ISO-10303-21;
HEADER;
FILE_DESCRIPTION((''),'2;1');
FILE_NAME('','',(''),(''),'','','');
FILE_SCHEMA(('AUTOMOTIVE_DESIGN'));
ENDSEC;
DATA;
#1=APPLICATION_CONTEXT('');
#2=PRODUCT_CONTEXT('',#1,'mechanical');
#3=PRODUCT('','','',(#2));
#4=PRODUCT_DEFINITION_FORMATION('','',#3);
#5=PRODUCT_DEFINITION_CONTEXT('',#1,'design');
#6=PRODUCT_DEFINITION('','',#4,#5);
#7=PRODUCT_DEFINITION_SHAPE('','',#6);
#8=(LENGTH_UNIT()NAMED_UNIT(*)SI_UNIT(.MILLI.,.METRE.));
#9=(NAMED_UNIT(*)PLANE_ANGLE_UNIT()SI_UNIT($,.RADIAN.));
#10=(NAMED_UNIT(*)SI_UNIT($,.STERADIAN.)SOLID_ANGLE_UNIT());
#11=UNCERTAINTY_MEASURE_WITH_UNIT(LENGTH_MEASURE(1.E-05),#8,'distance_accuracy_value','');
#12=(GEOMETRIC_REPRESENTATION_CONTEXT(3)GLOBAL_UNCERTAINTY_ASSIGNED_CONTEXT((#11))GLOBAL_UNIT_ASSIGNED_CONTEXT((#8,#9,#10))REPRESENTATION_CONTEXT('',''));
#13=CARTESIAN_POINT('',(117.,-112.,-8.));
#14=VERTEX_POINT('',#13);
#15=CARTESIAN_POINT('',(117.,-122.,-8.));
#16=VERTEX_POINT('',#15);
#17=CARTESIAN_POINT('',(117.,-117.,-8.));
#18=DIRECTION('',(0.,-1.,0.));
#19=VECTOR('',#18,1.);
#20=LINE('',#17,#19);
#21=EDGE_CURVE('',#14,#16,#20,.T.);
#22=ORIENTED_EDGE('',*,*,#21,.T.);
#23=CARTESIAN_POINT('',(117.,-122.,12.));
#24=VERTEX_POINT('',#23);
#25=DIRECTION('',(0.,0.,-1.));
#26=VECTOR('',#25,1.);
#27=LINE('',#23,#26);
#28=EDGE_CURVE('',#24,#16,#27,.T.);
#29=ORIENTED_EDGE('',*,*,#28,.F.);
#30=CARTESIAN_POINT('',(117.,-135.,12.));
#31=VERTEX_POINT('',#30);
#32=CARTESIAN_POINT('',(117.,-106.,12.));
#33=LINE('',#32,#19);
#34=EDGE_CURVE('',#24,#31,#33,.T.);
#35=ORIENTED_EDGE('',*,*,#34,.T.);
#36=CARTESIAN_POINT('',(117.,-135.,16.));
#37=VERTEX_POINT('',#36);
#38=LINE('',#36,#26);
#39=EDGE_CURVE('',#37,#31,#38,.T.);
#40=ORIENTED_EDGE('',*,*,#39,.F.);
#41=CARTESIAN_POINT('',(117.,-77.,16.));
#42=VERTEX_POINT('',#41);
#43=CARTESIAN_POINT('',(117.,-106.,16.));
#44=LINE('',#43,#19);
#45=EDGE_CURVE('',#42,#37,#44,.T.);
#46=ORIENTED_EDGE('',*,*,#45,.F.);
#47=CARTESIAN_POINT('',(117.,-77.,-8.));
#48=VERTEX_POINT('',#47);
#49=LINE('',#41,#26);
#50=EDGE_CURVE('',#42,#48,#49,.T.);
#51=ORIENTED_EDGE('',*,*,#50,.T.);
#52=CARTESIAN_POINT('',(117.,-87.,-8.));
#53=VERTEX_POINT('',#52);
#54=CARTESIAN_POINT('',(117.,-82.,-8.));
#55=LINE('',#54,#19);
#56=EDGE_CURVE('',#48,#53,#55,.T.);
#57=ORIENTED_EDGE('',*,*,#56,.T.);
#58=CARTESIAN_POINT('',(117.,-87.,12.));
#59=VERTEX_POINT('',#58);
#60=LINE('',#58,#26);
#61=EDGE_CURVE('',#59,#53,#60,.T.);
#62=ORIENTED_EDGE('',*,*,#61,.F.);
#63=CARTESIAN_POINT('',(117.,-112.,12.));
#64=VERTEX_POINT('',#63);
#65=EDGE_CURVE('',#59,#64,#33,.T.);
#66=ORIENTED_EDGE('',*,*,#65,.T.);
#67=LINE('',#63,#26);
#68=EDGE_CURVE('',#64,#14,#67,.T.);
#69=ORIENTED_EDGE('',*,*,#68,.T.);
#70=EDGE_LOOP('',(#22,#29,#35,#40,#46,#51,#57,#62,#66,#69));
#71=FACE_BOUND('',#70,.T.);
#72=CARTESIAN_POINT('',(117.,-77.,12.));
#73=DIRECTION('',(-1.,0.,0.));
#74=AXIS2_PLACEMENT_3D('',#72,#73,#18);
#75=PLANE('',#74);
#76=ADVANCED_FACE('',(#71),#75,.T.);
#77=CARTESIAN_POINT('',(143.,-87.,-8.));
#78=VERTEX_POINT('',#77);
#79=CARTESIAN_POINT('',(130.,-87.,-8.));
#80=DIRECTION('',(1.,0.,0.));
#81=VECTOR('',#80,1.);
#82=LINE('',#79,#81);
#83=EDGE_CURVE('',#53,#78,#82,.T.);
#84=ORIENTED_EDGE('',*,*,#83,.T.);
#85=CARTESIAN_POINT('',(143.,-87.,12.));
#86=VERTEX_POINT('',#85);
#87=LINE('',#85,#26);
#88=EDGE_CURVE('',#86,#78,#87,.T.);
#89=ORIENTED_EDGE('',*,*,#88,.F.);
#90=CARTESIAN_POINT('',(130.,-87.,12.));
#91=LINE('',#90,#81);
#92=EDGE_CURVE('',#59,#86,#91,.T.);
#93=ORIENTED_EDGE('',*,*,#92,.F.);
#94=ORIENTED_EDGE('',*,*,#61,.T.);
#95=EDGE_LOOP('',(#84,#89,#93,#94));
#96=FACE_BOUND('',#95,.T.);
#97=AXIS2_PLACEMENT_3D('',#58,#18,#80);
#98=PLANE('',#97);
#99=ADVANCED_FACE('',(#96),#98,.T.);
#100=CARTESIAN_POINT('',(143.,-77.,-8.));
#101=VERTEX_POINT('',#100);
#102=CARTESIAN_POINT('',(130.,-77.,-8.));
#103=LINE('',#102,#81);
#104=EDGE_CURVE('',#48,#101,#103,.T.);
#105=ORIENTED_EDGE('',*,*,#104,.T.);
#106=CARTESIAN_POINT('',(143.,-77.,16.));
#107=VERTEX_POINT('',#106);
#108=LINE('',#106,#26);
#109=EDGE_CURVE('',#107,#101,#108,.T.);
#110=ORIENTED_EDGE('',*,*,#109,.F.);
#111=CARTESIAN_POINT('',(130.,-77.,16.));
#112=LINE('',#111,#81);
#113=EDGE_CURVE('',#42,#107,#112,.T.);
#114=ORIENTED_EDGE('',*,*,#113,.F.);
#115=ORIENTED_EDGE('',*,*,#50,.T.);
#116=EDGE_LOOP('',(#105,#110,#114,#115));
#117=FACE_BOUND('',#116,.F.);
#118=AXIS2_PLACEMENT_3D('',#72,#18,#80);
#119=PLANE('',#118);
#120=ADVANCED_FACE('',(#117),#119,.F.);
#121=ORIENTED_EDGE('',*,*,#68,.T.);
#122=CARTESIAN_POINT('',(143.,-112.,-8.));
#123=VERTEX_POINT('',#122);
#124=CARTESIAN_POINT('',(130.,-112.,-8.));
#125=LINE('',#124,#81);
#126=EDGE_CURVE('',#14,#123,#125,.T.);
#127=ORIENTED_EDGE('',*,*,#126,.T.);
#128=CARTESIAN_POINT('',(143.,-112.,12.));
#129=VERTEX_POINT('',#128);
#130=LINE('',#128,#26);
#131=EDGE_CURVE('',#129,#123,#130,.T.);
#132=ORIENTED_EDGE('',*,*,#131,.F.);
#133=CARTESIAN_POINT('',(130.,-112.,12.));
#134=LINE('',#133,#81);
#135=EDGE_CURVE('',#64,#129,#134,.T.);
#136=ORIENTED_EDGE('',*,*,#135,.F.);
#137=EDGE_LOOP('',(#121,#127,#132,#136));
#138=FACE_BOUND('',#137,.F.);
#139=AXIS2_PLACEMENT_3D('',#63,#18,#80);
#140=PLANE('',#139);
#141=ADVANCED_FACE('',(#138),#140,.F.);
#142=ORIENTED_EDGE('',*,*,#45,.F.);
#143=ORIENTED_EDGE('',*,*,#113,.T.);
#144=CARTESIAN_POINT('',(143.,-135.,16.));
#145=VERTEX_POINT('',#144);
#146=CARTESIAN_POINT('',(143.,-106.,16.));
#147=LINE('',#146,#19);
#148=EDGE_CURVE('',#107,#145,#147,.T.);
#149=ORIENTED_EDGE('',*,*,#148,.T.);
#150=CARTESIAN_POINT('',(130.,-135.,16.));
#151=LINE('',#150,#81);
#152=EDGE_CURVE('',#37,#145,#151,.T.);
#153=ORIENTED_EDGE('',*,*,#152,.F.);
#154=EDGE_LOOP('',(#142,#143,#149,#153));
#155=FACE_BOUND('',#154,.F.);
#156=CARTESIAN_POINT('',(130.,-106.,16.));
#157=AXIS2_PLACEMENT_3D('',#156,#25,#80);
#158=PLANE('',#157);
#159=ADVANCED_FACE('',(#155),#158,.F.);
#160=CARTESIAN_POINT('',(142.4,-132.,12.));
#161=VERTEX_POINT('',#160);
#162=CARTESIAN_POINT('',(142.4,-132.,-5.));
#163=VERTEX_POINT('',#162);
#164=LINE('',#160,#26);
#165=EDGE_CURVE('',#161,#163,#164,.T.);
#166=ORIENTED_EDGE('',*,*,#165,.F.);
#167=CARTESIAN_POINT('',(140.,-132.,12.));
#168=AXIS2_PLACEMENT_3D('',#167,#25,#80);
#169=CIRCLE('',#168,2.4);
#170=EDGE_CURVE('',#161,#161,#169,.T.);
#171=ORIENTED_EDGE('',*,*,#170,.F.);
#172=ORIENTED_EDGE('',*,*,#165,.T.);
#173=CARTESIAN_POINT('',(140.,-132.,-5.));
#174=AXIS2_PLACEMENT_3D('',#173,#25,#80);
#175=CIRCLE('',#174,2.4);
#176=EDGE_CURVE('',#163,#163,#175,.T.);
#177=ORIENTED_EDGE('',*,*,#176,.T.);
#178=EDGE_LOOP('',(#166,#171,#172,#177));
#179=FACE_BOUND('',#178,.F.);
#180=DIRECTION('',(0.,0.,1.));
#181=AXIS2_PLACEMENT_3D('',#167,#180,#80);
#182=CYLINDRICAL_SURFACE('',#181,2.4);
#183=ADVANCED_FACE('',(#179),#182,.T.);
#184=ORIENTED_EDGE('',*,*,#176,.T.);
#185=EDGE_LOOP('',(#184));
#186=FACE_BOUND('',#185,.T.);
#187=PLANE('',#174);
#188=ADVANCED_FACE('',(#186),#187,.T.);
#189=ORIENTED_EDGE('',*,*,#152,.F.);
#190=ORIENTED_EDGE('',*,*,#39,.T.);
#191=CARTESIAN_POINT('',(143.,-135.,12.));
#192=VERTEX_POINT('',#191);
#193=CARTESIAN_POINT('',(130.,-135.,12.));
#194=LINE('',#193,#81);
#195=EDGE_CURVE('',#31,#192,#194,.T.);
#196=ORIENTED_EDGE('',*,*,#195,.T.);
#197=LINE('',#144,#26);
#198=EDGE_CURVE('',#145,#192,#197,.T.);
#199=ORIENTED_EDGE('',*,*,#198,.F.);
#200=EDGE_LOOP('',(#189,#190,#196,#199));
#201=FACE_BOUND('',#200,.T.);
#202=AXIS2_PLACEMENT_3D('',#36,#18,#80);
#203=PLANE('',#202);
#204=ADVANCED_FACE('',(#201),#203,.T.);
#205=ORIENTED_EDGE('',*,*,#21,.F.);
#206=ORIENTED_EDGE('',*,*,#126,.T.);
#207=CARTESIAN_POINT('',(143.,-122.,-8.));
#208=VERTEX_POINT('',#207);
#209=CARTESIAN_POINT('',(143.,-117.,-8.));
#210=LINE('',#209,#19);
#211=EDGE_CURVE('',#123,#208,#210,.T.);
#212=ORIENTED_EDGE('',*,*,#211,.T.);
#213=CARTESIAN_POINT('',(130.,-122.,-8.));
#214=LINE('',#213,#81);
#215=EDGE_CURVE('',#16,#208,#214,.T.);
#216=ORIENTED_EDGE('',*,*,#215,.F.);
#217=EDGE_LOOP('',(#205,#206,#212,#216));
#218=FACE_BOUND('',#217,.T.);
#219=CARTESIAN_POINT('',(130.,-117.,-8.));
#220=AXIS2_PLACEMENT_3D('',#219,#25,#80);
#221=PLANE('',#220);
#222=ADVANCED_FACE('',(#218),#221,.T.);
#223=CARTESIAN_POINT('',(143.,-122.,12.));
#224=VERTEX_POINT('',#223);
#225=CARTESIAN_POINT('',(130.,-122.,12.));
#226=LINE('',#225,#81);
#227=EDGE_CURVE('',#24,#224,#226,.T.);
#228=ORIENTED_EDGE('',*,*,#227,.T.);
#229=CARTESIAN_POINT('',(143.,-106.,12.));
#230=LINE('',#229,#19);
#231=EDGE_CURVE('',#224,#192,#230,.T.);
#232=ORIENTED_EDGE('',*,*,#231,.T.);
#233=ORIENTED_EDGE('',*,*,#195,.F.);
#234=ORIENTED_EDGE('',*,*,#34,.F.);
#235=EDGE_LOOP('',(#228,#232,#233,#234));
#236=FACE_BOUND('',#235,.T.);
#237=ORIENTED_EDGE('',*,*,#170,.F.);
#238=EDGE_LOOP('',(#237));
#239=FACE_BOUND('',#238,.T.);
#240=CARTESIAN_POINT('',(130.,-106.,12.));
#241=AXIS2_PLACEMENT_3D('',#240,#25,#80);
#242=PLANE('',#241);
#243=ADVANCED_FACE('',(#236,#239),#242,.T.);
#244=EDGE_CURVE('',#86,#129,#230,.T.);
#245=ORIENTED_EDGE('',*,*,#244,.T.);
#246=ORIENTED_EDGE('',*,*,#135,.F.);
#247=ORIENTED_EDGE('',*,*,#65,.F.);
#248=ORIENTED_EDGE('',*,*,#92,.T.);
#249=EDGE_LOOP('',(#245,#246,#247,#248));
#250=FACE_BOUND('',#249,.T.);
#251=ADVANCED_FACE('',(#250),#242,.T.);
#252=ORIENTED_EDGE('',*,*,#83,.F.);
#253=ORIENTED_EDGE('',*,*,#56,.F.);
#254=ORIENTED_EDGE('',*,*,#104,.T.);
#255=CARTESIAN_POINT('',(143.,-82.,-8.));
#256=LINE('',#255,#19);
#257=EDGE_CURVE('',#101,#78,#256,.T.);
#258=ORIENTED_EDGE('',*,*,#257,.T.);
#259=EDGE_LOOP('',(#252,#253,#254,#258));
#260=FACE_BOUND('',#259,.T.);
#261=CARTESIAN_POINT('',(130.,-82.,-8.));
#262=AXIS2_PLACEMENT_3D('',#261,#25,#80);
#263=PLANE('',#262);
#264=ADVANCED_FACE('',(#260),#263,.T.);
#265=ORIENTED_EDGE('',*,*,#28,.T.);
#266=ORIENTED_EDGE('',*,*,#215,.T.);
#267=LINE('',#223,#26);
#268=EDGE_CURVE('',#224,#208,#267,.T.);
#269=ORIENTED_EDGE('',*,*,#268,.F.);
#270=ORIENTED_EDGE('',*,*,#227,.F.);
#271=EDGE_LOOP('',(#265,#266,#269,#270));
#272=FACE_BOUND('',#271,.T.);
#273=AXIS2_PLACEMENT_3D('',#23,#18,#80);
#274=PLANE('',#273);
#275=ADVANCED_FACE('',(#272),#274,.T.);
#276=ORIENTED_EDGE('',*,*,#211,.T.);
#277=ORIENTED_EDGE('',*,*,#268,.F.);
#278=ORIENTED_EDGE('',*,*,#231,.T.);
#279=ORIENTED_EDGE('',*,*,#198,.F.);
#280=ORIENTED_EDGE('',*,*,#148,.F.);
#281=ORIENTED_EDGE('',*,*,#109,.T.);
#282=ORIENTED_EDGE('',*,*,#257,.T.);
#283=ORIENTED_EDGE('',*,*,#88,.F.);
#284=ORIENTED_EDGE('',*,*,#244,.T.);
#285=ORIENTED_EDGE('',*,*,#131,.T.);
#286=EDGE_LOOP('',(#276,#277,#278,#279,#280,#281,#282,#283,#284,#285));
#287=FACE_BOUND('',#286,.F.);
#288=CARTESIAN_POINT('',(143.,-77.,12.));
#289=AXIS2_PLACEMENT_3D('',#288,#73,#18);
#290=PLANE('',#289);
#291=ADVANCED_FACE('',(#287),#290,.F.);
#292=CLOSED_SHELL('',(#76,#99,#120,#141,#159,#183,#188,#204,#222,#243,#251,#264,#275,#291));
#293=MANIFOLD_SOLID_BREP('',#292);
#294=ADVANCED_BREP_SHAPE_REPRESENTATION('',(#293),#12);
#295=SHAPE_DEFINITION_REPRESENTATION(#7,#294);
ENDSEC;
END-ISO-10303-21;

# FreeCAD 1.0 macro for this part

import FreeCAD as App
import Part
import Sketcher
from FreeCAD import Vector

doc = App.newDocument("Part")
params = doc.addObject("Spreadsheet::Sheet", "Params")
for row, (alias, value) in enumerate([
    ("sketch1_width", "26 mm"),
    ("sketch1_height", "58 mm"),
    ("pad1_length", "4 mm"),
    ("sketch2_width", "26 mm"),
    ("sketch2_height", "10 mm"),
    ("pad2_length", "20 mm"),
    ("sketch3_diameter", "4.8 mm"),
    ("pad3_length", "17 mm"),
], start=1):
    params.set(f"A{row}", alias)
    params.set(f"B{row}", "=" + value)
    params.setAlias(f"B{row}", alias)

body = doc.addObject("PartDesign::Body", "Body")

# Sketch on XY plane
sketch1 = body.newObject("Sketcher::SketchObject", "Sketch")
sketch1.AttachmentSupport = (doc.getObject("XY_Plane"), [""])
sketch1.MapMode = "FlatFace"
sketch1.AttachmentOffset = App.Placement(Vector(0, 0, 16), App.Rotation())
sketch1.addGeometry(Part.LineSegment(Vector(117, -135, 0), Vector(117, -77, 0)), False)
sketch1.addGeometry(Part.LineSegment(Vector(117, -77, 0), Vector(143, -77, 0)), False)
sketch1.addGeometry(Part.LineSegment(Vector(143, -77, 0), Vector(143, -135, 0)), False)
sketch1.addGeometry(Part.LineSegment(Vector(143, -135, 0), Vector(117, -135, 0)), False)
sketch1.addConstraint(Sketcher.Constraint("Coincident", 0, 2, 1, 1))
sketch1.addConstraint(Sketcher.Constraint("Coincident", 1, 2, 2, 1))
sketch1.addConstraint(Sketcher.Constraint("Coincident", 2, 2, 3, 1))
sketch1.addConstraint(Sketcher.Constraint("Coincident", 3, 2, 0, 1))
sketch1.addConstraint(Sketcher.Constraint("Vertical", 0))
sketch1.addConstraint(Sketcher.Constraint("Horizontal", 1))
sketch1.addConstraint(Sketcher.Constraint("Vertical", 2))
sketch1.addConstraint(Sketcher.Constraint("Horizontal", 3))
sketch1.addConstraint(Sketcher.Constraint("DistanceX", 1, 1, 1, 2, 26.0))
sketch1.addConstraint(Sketcher.Constraint("DistanceY", 0, 1, 0, 2, 58.0))
sketch1.addConstraint(Sketcher.Constraint("DistanceX", -1, 1, 0, 2, 117.0))
sketch1.addConstraint(Sketcher.Constraint("DistanceY", 0, 2, -1, 1, 77.0))
sketch1.setExpression("Constraints[8]", "Params.sketch1_width")
sketch1.setExpression("Constraints[9]", "Params.sketch1_height")
pad1 = body.newObject("PartDesign::Pad", "Pad")
pad1.Profile = sketch1
pad1.setExpression("Length", "Params.pad1_length")
pad1.Reversed = True

# Sketch on XY plane
sketch2 = body.newObject("Sketcher::SketchObject", "Sketch001")
sketch2.AttachmentSupport = (doc.getObject("XY_Plane"), [""])
sketch2.MapMode = "FlatFace"
sketch2.AttachmentOffset = App.Placement(Vector(0, 0, 12), App.Rotation())
sketch2.addGeometry(Part.LineSegment(Vector(117, -122, 0), Vector(117, -112, 0)), False)
sketch2.addGeometry(Part.LineSegment(Vector(117, -112, 0), Vector(143, -112, 0)), False)
sketch2.addGeometry(Part.LineSegment(Vector(143, -112, 0), Vector(143, -122, 0)), False)
sketch2.addGeometry(Part.LineSegment(Vector(143, -122, 0), Vector(117, -122, 0)), False)
sketch2.addGeometry(Part.LineSegment(Vector(117, -87, 0), Vector(117, -77, 0)), False)
sketch2.addGeometry(Part.LineSegment(Vector(117, -77, 0), Vector(143, -77, 0)), False)
sketch2.addGeometry(Part.LineSegment(Vector(143, -77, 0), Vector(143, -87, 0)), False)
sketch2.addGeometry(Part.LineSegment(Vector(143, -87, 0), Vector(117, -87, 0)), False)
sketch2.addConstraint(Sketcher.Constraint("Coincident", 0, 2, 1, 1))
sketch2.addConstraint(Sketcher.Constraint("Coincident", 1, 2, 2, 1))
sketch2.addConstraint(Sketcher.Constraint("Coincident", 2, 2, 3, 1))
sketch2.addConstraint(Sketcher.Constraint("Coincident", 3, 2, 0, 1))
sketch2.addConstraint(Sketcher.Constraint("Coincident", 4, 2, 5, 1))
sketch2.addConstraint(Sketcher.Constraint("Coincident", 5, 2, 6, 1))
sketch2.addConstraint(Sketcher.Constraint("Coincident", 6, 2, 7, 1))
sketch2.addConstraint(Sketcher.Constraint("Coincident", 7, 2, 4, 1))
sketch2.addConstraint(Sketcher.Constraint("Vertical", 0))
sketch2.addConstraint(Sketcher.Constraint("Horizontal", 1))
sketch2.addConstraint(Sketcher.Constraint("Vertical", 2))
sketch2.addConstraint(Sketcher.Constraint("Horizontal", 3))
sketch2.addConstraint(Sketcher.Constraint("Vertical", 4))
sketch2.addConstraint(Sketcher.Constraint("Horizontal", 5))
sketch2.addConstraint(Sketcher.Constraint("Vertical", 6))
sketch2.addConstraint(Sketcher.Constraint("Horizontal", 7))
sketch2.addConstraint(Sketcher.Constraint("Vertical", 3, 2, 4, 2))
sketch2.addConstraint(Sketcher.Constraint("Vertical", 2, 2, 5, 2))
sketch2.addConstraint(Sketcher.Constraint("Equal", 2, 4))
sketch2.addConstraint(Sketcher.Constraint("DistanceX", 1, 1, 1, 2, 26.0))
sketch2.addConstraint(Sketcher.Constraint("DistanceY", 0, 1, 0, 2, 10.0))
sketch2.addConstraint(Sketcher.Constraint("DistanceX", -1, 1, 0, 2, 117.0))
sketch2.addConstraint(Sketcher.Constraint("DistanceY", 0, 2, -1, 1, 112.0))
sketch2.addConstraint(Sketcher.Constraint("DistanceY", 4, 2, -1, 1, 77.0))
sketch2.setExpression("Constraints[19]", "Params.sketch2_width")
sketch2.setExpression("Constraints[20]", "Params.sketch2_height")
pad2 = body.newObject("PartDesign::Pad", "Pad001")
pad2.Profile = sketch2
pad2.setExpression("Length", "Params.pad2_length")
pad2.Reversed = True

# Sketch on XY plane
sketch3 = body.newObject("Sketcher::SketchObject", "Sketch002")
sketch3.AttachmentSupport = (doc.getObject("XY_Plane"), [""])
sketch3.MapMode = "FlatFace"
sketch3.AttachmentOffset = App.Placement(Vector(0, 0, 12), App.Rotation())
sketch3.addGeometry(Part.Circle(Vector(140, -132, 0), Vector(0, 0, 1), 2.4), False)
sketch3.addConstraint(Sketcher.Constraint("Diameter", 0, 4.8))
sketch3.addConstraint(Sketcher.Constraint("DistanceX", -1, 1, 0, 3, 140.0))
sketch3.addConstraint(Sketcher.Constraint("DistanceY", 0, 3, -1, 1, 132.0))
sketch3.setExpression("Constraints[0]", "Params.sketch3_diameter")
pad3 = body.newObject("PartDesign::Pad", "Pad002")
pad3.Profile = sketch3
pad3.setExpression("Length", "Params.pad3_length")
pad3.Reversed = True

doc.recompute()
